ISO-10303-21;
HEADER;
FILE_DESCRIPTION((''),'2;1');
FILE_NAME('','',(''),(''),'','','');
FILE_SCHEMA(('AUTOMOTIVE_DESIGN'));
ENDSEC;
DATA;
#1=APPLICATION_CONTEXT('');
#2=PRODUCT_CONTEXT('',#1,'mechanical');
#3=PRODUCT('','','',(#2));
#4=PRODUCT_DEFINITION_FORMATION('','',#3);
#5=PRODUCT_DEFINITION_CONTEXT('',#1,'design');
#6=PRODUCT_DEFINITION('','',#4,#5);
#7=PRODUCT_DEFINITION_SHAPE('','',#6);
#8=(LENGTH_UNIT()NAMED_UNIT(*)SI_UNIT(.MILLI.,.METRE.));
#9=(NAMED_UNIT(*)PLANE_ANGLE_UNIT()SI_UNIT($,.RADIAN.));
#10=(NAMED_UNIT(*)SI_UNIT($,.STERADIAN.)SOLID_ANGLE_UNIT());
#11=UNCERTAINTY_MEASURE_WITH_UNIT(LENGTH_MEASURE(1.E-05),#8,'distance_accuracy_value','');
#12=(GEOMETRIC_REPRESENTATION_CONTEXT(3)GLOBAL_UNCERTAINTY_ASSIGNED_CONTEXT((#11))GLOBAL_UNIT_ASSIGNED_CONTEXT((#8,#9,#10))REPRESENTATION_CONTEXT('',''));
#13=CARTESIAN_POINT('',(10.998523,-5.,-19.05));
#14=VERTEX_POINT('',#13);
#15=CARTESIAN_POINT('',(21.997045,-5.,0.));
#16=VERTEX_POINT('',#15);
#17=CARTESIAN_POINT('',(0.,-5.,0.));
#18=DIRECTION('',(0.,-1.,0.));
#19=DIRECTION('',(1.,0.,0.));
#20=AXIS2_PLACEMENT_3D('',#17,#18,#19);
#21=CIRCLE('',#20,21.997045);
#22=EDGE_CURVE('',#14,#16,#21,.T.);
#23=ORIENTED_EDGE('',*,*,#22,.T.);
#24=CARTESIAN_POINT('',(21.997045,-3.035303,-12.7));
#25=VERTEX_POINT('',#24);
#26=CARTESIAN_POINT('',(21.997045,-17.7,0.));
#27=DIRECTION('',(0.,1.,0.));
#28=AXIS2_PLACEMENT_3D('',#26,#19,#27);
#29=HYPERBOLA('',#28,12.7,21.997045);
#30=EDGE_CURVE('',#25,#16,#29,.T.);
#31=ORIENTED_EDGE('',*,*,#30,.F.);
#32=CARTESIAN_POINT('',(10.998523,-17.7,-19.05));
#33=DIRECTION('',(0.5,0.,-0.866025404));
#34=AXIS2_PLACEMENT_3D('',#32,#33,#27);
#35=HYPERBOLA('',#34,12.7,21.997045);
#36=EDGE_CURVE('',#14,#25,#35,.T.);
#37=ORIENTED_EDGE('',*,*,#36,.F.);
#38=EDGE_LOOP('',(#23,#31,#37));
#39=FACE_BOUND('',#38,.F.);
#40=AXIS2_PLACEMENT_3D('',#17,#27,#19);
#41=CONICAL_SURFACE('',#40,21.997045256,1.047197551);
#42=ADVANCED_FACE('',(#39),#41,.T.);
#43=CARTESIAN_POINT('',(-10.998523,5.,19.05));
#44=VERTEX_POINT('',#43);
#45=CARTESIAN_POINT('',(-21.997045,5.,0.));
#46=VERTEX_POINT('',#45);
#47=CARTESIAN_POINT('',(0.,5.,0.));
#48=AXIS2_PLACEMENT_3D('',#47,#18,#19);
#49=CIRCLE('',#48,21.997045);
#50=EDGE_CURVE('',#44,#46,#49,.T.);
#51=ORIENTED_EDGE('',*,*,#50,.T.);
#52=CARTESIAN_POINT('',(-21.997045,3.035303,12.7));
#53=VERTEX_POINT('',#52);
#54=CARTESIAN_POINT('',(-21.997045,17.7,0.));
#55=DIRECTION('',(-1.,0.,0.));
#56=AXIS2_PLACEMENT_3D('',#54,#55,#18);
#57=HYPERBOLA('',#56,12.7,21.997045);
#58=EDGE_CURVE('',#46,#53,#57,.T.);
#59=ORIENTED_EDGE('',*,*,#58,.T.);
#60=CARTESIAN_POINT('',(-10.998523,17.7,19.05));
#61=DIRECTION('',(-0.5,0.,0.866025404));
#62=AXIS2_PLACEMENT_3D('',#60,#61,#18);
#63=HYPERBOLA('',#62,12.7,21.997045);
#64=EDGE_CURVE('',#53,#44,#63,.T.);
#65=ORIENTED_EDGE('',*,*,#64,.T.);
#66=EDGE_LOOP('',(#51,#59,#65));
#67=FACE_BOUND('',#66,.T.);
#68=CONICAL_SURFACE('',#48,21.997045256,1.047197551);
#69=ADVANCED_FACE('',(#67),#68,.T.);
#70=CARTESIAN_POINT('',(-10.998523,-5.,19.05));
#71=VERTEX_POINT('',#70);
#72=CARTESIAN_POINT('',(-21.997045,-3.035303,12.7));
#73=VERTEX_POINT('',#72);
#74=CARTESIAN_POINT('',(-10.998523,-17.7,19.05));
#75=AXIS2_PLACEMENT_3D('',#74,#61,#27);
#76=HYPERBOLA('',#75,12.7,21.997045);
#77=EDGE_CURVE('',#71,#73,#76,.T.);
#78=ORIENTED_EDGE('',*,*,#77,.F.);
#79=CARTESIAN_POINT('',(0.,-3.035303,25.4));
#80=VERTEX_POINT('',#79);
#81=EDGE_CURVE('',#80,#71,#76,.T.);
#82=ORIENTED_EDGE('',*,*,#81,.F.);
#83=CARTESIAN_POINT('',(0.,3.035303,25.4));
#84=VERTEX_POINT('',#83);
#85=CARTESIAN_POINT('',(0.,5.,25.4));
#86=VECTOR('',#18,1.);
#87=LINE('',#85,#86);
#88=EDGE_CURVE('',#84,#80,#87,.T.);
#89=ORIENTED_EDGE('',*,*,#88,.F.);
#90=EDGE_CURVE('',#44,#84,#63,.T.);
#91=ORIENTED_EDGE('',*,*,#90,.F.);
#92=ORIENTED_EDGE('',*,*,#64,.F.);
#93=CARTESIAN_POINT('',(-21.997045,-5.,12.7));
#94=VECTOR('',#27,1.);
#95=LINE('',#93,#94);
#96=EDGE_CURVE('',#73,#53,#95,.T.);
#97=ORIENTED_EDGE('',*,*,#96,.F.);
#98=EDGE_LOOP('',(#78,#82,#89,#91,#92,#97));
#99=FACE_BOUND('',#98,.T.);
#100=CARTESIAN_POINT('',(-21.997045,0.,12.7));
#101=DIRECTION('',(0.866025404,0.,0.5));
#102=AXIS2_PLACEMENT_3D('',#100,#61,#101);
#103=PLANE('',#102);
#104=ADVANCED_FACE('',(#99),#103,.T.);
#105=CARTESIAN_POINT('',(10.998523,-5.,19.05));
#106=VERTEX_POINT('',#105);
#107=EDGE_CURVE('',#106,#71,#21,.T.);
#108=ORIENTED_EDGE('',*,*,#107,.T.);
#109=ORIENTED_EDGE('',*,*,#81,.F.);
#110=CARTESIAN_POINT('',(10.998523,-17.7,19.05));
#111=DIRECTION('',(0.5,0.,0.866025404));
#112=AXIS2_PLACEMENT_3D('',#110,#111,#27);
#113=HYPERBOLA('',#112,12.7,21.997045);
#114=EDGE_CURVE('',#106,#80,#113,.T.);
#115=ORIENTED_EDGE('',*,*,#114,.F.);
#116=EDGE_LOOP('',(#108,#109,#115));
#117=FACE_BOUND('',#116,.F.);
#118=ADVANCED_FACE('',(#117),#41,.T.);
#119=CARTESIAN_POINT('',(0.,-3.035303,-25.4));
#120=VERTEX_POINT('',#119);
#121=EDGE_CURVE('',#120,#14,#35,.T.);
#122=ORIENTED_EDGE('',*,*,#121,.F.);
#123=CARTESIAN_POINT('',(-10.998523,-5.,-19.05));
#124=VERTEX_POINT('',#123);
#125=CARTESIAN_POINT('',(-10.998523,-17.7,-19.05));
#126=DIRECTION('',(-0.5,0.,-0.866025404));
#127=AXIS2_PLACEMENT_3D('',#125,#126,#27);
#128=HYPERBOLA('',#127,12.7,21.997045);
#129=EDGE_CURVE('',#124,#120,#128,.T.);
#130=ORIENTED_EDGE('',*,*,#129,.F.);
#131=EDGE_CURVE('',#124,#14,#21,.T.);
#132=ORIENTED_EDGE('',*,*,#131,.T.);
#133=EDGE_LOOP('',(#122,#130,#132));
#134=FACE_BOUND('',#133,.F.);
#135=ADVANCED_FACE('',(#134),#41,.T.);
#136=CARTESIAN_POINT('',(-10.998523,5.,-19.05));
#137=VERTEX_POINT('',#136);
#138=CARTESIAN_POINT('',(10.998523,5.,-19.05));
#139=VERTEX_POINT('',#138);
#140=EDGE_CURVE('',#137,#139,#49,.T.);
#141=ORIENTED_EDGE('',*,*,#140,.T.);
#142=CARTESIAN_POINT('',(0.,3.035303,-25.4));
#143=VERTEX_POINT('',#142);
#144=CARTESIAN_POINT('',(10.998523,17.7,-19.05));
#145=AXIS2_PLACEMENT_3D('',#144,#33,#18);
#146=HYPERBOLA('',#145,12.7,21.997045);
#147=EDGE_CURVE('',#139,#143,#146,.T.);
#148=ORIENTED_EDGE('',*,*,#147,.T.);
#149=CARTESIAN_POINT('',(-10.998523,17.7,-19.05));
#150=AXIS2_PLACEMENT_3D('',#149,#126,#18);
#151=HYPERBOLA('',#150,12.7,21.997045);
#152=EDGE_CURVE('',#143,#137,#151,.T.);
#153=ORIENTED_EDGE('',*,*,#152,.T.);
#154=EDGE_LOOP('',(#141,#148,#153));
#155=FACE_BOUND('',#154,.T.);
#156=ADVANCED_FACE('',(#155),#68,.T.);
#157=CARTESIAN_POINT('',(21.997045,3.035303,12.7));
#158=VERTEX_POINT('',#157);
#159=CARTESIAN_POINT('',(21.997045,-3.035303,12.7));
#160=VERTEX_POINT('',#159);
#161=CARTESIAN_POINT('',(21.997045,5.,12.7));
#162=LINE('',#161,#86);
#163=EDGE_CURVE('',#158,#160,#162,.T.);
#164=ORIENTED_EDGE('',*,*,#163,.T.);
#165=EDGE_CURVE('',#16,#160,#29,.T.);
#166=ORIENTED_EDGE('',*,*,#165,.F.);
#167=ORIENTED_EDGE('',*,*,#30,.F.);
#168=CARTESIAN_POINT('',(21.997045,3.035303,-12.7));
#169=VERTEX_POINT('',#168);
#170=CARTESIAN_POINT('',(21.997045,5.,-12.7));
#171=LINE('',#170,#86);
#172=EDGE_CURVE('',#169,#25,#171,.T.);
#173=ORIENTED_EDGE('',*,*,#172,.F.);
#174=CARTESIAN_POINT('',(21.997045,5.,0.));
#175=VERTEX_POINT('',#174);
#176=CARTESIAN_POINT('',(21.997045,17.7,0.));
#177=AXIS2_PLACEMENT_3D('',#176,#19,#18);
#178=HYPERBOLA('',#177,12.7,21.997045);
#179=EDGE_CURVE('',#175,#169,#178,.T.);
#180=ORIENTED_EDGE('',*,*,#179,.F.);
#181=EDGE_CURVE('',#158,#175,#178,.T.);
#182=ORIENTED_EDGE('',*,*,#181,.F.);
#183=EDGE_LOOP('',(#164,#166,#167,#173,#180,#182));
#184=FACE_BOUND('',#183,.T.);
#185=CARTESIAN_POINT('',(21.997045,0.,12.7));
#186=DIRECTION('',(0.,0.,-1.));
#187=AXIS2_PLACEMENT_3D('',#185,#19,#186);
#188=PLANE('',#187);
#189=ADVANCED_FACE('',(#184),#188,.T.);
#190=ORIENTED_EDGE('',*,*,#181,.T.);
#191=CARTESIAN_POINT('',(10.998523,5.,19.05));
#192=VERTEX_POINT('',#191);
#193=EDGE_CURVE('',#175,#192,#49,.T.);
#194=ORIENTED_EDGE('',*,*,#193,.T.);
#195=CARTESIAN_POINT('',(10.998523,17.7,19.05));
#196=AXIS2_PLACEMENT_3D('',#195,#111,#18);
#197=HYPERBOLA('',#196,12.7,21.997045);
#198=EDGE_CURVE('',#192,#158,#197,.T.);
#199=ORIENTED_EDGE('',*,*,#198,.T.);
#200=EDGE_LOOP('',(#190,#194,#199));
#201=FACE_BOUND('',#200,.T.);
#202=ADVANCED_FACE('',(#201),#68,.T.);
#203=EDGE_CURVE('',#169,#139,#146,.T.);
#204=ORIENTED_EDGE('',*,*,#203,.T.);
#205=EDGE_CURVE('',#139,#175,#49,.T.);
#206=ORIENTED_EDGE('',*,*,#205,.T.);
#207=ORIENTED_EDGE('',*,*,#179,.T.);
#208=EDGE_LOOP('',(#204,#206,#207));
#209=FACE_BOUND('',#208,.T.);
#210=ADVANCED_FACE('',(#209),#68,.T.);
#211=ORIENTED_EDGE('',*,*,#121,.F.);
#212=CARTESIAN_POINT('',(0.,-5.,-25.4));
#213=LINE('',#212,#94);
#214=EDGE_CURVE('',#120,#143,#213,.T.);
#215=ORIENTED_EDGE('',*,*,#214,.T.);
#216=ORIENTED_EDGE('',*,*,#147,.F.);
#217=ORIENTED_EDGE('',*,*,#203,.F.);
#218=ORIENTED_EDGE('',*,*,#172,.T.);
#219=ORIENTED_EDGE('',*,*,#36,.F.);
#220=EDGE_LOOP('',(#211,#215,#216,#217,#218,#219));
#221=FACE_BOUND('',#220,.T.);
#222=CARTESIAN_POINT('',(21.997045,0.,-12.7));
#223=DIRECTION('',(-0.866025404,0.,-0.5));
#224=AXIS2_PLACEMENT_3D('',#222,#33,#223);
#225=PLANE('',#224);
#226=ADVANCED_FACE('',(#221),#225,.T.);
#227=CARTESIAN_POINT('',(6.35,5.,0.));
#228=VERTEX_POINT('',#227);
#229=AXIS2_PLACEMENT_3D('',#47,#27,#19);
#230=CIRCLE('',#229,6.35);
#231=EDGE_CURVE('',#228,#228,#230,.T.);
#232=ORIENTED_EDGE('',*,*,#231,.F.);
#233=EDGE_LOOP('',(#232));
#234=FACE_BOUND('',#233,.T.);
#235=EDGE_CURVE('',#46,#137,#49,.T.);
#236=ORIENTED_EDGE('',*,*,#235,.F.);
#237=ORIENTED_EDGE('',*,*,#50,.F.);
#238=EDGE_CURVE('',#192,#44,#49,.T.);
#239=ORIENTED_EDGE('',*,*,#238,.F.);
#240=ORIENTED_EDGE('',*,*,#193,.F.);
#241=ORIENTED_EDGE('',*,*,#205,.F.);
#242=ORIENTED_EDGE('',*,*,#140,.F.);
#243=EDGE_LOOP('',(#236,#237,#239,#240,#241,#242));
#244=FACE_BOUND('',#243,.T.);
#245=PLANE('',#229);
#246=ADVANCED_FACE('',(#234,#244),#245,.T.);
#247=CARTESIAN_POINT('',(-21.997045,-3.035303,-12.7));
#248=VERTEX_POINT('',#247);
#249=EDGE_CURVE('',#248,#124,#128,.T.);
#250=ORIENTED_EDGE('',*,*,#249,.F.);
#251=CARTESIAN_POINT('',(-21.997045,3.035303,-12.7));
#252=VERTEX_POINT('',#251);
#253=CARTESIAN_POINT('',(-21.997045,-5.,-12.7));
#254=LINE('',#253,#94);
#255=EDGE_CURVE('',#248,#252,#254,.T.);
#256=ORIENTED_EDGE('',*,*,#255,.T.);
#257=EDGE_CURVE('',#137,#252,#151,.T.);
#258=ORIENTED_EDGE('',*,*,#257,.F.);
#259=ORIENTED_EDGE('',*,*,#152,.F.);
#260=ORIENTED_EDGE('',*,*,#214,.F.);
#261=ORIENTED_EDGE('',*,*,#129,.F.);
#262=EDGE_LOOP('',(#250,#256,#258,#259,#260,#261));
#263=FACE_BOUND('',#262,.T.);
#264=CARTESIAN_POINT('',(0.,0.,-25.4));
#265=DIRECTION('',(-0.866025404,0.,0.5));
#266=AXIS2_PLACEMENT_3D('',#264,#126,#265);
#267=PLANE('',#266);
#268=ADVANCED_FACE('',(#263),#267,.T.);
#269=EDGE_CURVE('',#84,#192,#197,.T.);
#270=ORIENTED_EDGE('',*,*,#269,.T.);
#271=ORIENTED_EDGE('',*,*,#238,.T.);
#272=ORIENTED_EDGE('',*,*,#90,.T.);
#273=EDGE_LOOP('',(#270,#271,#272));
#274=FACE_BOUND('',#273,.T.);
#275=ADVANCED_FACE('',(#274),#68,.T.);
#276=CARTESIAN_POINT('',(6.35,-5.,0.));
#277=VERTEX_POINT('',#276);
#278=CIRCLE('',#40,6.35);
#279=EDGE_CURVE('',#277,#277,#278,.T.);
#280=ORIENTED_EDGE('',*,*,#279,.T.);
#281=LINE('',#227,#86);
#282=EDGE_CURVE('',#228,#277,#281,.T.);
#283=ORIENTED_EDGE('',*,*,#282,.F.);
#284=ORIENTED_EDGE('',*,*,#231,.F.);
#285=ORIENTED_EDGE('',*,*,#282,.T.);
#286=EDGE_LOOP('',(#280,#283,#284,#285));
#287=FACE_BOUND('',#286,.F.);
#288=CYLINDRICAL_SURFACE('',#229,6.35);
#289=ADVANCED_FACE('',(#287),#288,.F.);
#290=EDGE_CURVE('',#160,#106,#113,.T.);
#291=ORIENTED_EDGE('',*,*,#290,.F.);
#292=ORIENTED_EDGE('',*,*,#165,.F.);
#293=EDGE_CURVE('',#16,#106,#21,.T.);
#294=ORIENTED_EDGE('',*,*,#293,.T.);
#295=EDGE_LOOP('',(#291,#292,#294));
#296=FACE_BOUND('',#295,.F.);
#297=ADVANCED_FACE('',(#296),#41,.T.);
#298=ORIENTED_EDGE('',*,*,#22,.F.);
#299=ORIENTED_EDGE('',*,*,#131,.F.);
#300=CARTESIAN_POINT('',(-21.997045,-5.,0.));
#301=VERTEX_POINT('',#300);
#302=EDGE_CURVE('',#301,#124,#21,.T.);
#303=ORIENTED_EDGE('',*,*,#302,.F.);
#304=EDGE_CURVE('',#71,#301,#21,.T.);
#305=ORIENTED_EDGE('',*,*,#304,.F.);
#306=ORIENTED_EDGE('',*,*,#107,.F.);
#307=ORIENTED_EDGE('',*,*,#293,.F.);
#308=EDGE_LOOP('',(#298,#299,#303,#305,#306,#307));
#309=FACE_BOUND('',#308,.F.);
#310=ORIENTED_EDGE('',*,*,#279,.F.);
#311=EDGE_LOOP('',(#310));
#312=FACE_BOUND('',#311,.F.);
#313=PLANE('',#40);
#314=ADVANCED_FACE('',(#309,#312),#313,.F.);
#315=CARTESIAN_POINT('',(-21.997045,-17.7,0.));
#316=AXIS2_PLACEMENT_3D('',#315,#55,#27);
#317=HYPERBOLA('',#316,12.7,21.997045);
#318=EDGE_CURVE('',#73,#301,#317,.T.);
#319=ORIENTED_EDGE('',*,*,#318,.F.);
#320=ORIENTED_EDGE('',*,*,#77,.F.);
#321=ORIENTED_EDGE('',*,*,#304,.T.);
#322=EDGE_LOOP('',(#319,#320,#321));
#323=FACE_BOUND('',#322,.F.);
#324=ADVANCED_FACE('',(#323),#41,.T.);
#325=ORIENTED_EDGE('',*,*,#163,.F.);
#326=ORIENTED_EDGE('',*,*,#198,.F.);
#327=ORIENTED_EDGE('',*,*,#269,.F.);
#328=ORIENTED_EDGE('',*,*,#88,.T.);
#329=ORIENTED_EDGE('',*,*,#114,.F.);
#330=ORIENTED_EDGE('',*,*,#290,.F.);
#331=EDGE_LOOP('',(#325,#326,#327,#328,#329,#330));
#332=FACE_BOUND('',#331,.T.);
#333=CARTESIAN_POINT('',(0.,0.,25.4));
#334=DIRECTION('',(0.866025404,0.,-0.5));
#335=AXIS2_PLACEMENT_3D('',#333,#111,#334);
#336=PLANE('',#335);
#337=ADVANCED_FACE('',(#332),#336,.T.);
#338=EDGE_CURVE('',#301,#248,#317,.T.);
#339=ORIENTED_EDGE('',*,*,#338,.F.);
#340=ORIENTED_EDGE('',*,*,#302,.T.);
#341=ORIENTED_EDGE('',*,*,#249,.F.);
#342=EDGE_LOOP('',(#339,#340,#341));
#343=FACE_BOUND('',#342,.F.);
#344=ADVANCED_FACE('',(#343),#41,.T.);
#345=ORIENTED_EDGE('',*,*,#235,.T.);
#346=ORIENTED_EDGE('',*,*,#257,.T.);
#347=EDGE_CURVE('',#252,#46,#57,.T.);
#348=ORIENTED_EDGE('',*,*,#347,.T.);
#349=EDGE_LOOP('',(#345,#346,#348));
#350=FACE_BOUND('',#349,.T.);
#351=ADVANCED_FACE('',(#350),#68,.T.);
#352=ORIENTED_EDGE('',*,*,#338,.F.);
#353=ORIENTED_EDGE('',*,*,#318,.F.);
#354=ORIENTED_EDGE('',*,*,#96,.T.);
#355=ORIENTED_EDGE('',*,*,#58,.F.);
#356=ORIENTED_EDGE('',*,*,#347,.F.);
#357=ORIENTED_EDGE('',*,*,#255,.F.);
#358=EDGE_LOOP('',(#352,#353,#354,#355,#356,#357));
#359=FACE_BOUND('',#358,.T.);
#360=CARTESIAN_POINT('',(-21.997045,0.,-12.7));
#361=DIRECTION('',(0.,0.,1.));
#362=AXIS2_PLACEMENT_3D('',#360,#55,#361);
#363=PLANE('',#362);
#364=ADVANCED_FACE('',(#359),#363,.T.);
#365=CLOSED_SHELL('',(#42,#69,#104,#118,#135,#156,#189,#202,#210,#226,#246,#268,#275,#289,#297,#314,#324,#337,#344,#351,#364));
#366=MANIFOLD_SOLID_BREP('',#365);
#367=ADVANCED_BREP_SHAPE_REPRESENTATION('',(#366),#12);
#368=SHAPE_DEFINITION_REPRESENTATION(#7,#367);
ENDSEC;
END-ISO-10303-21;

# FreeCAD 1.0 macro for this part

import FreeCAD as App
import Part
import Sketcher
from FreeCAD import Vector
Q = App.Units.Quantity


def add_polygon(sketch, points):
    """Adds a closed chain of lines whose ends are joined by coincident constraints."""
    first, n = sketch.GeometryCount, len(points)
    for a, b in zip(points, points[1:] + points[:1]):
        sketch.addGeometry(Part.LineSegment(App.Vector(*a, 0), App.Vector(*b, 0)), False)
    for i in range(n):
        sketch.addConstraint(Sketcher.Constraint("Coincident", first + i, 2, first + (i + 1) % n, 1))

doc = App.newDocument("Part")
body = doc.addObject("PartDesign::Body", "Body")

sketch1 = body.newObject("Sketcher::SketchObject", "Sketch")
sketch1.AttachmentSupport = (doc.getObject("XZ_Plane"), [""])
sketch1.MapMode = "FlatFace"
add_polygon(sketch1, [(22, -13), (0, -25), (-22, -13), (-22, 13), (0, 25), (22, 13)])
sketch1.addConstraint(Sketcher.Constraint("Vertical", 2))
sketch1.addConstraint(Sketcher.Constraint("Vertical", 5))
sketch1.addConstraint(Sketcher.Constraint("Symmetric", 0, 2, 3, 2, -1, 1))
sketch1.addConstraint(Sketcher.Constraint("Symmetric", 1, 2, 4, 2, -1, 1))
sketch1.addConstraint(Sketcher.Constraint("PointOnObject", 0, 2, -2))
sketch1.addConstraint(Sketcher.Constraint("Parallel", 0, 3))
sketch1.addConstraint(Sketcher.Constraint("Horizontal", 2, 2, 4, 2))
sketch1.addConstraint(Sketcher.Constraint("Angle", 0, Q("-150 deg")))
sketch1.addConstraint(Sketcher.Constraint("DistanceY", 2, 1, 2, 2, 25.4))
sketch1.addConstraint(Sketcher.Constraint("Distance", 0, 25.4))
pad1 = body.newObject("PartDesign::Pad", "Pad")
pad1.Profile = sketch1
pad1.Length = 10
pad1.Midplane = True

sketch2 = body.newObject("Sketcher::SketchObject", "Sketch001")
sketch2.AttachmentSupport = (doc.getObject("XZ_Plane"), [""])
sketch2.MapMode = "FlatFace"
sketch2.AttachmentOffset = App.Placement(Vector(0, 0, -5), App.Rotation())
sketch2.addGeometry(Part.Circle(Vector(0, 0, 0), Vector(0, 0, 1), 6), False)
sketch2.addConstraint(Sketcher.Constraint("Coincident", 0, 3, -1, 1))
sketch2.addConstraint(Sketcher.Constraint("Diameter", 0, 12.7))
pocket1 = body.newObject("PartDesign::Pocket", "Pocket")
pocket1.Profile = sketch2
pocket1.Type = "ThroughAll"
pocket1.Reversed = True

sketch3 = body.newObject("Sketcher::SketchObject", "Sketch002")
sketch3.AttachmentSupport = (doc.getObject("XZ_Plane"), [""])
sketch3.MapMode = "FlatFace"
sketch3.AttachmentOffset = App.Placement(Vector(0, 0, -5), App.Rotation())
add_polygon(sketch3, [(-49, -52), (-49, 52), (49, 52), (49, -52)])
sketch3.addGeometry(Part.Circle(Vector(0, 0, 0), Vector(0, 0, 1), 22), False)
sketch3.addConstraint(Sketcher.Constraint("Vertical", 0))
sketch3.addConstraint(Sketcher.Constraint("Horizontal", 1))
sketch3.addConstraint(Sketcher.Constraint("Vertical", 2))
sketch3.addConstraint(Sketcher.Constraint("Horizontal", 3))
sketch3.addConstraint(Sketcher.Constraint("Coincident", 4, 3, -1, 1))
sketch3.addConstraint(Sketcher.Constraint("Symmetric", 0, 2, 2, 2, -1, 1))
sketch3.addConstraint(Sketcher.Constraint("Diameter", 4, 43.994091))
sketch3.addConstraint(Sketcher.Constraint("DistanceX", 1, 1, 1, 2, 97.688))
sketch3.addConstraint(Sketcher.Constraint("DistanceY", 0, 1, 0, 2, 104.494))
pocket2 = body.newObject("PartDesign::Pocket", "Pocket001")
pocket2.Profile = sketch3
pocket2.Length = 11
pocket2.Reversed = True
pocket2.TaperAngle = 60
doc.recompute()

mirrored = body.newObject("PartDesign::Mirrored", "Mirrored")
mirrored.Originals = [pocket2]
mirrored.MirrorPlane = (doc.getObject("XZ_Plane"), [""])
body.Tip = mirrored

doc.recompute()
